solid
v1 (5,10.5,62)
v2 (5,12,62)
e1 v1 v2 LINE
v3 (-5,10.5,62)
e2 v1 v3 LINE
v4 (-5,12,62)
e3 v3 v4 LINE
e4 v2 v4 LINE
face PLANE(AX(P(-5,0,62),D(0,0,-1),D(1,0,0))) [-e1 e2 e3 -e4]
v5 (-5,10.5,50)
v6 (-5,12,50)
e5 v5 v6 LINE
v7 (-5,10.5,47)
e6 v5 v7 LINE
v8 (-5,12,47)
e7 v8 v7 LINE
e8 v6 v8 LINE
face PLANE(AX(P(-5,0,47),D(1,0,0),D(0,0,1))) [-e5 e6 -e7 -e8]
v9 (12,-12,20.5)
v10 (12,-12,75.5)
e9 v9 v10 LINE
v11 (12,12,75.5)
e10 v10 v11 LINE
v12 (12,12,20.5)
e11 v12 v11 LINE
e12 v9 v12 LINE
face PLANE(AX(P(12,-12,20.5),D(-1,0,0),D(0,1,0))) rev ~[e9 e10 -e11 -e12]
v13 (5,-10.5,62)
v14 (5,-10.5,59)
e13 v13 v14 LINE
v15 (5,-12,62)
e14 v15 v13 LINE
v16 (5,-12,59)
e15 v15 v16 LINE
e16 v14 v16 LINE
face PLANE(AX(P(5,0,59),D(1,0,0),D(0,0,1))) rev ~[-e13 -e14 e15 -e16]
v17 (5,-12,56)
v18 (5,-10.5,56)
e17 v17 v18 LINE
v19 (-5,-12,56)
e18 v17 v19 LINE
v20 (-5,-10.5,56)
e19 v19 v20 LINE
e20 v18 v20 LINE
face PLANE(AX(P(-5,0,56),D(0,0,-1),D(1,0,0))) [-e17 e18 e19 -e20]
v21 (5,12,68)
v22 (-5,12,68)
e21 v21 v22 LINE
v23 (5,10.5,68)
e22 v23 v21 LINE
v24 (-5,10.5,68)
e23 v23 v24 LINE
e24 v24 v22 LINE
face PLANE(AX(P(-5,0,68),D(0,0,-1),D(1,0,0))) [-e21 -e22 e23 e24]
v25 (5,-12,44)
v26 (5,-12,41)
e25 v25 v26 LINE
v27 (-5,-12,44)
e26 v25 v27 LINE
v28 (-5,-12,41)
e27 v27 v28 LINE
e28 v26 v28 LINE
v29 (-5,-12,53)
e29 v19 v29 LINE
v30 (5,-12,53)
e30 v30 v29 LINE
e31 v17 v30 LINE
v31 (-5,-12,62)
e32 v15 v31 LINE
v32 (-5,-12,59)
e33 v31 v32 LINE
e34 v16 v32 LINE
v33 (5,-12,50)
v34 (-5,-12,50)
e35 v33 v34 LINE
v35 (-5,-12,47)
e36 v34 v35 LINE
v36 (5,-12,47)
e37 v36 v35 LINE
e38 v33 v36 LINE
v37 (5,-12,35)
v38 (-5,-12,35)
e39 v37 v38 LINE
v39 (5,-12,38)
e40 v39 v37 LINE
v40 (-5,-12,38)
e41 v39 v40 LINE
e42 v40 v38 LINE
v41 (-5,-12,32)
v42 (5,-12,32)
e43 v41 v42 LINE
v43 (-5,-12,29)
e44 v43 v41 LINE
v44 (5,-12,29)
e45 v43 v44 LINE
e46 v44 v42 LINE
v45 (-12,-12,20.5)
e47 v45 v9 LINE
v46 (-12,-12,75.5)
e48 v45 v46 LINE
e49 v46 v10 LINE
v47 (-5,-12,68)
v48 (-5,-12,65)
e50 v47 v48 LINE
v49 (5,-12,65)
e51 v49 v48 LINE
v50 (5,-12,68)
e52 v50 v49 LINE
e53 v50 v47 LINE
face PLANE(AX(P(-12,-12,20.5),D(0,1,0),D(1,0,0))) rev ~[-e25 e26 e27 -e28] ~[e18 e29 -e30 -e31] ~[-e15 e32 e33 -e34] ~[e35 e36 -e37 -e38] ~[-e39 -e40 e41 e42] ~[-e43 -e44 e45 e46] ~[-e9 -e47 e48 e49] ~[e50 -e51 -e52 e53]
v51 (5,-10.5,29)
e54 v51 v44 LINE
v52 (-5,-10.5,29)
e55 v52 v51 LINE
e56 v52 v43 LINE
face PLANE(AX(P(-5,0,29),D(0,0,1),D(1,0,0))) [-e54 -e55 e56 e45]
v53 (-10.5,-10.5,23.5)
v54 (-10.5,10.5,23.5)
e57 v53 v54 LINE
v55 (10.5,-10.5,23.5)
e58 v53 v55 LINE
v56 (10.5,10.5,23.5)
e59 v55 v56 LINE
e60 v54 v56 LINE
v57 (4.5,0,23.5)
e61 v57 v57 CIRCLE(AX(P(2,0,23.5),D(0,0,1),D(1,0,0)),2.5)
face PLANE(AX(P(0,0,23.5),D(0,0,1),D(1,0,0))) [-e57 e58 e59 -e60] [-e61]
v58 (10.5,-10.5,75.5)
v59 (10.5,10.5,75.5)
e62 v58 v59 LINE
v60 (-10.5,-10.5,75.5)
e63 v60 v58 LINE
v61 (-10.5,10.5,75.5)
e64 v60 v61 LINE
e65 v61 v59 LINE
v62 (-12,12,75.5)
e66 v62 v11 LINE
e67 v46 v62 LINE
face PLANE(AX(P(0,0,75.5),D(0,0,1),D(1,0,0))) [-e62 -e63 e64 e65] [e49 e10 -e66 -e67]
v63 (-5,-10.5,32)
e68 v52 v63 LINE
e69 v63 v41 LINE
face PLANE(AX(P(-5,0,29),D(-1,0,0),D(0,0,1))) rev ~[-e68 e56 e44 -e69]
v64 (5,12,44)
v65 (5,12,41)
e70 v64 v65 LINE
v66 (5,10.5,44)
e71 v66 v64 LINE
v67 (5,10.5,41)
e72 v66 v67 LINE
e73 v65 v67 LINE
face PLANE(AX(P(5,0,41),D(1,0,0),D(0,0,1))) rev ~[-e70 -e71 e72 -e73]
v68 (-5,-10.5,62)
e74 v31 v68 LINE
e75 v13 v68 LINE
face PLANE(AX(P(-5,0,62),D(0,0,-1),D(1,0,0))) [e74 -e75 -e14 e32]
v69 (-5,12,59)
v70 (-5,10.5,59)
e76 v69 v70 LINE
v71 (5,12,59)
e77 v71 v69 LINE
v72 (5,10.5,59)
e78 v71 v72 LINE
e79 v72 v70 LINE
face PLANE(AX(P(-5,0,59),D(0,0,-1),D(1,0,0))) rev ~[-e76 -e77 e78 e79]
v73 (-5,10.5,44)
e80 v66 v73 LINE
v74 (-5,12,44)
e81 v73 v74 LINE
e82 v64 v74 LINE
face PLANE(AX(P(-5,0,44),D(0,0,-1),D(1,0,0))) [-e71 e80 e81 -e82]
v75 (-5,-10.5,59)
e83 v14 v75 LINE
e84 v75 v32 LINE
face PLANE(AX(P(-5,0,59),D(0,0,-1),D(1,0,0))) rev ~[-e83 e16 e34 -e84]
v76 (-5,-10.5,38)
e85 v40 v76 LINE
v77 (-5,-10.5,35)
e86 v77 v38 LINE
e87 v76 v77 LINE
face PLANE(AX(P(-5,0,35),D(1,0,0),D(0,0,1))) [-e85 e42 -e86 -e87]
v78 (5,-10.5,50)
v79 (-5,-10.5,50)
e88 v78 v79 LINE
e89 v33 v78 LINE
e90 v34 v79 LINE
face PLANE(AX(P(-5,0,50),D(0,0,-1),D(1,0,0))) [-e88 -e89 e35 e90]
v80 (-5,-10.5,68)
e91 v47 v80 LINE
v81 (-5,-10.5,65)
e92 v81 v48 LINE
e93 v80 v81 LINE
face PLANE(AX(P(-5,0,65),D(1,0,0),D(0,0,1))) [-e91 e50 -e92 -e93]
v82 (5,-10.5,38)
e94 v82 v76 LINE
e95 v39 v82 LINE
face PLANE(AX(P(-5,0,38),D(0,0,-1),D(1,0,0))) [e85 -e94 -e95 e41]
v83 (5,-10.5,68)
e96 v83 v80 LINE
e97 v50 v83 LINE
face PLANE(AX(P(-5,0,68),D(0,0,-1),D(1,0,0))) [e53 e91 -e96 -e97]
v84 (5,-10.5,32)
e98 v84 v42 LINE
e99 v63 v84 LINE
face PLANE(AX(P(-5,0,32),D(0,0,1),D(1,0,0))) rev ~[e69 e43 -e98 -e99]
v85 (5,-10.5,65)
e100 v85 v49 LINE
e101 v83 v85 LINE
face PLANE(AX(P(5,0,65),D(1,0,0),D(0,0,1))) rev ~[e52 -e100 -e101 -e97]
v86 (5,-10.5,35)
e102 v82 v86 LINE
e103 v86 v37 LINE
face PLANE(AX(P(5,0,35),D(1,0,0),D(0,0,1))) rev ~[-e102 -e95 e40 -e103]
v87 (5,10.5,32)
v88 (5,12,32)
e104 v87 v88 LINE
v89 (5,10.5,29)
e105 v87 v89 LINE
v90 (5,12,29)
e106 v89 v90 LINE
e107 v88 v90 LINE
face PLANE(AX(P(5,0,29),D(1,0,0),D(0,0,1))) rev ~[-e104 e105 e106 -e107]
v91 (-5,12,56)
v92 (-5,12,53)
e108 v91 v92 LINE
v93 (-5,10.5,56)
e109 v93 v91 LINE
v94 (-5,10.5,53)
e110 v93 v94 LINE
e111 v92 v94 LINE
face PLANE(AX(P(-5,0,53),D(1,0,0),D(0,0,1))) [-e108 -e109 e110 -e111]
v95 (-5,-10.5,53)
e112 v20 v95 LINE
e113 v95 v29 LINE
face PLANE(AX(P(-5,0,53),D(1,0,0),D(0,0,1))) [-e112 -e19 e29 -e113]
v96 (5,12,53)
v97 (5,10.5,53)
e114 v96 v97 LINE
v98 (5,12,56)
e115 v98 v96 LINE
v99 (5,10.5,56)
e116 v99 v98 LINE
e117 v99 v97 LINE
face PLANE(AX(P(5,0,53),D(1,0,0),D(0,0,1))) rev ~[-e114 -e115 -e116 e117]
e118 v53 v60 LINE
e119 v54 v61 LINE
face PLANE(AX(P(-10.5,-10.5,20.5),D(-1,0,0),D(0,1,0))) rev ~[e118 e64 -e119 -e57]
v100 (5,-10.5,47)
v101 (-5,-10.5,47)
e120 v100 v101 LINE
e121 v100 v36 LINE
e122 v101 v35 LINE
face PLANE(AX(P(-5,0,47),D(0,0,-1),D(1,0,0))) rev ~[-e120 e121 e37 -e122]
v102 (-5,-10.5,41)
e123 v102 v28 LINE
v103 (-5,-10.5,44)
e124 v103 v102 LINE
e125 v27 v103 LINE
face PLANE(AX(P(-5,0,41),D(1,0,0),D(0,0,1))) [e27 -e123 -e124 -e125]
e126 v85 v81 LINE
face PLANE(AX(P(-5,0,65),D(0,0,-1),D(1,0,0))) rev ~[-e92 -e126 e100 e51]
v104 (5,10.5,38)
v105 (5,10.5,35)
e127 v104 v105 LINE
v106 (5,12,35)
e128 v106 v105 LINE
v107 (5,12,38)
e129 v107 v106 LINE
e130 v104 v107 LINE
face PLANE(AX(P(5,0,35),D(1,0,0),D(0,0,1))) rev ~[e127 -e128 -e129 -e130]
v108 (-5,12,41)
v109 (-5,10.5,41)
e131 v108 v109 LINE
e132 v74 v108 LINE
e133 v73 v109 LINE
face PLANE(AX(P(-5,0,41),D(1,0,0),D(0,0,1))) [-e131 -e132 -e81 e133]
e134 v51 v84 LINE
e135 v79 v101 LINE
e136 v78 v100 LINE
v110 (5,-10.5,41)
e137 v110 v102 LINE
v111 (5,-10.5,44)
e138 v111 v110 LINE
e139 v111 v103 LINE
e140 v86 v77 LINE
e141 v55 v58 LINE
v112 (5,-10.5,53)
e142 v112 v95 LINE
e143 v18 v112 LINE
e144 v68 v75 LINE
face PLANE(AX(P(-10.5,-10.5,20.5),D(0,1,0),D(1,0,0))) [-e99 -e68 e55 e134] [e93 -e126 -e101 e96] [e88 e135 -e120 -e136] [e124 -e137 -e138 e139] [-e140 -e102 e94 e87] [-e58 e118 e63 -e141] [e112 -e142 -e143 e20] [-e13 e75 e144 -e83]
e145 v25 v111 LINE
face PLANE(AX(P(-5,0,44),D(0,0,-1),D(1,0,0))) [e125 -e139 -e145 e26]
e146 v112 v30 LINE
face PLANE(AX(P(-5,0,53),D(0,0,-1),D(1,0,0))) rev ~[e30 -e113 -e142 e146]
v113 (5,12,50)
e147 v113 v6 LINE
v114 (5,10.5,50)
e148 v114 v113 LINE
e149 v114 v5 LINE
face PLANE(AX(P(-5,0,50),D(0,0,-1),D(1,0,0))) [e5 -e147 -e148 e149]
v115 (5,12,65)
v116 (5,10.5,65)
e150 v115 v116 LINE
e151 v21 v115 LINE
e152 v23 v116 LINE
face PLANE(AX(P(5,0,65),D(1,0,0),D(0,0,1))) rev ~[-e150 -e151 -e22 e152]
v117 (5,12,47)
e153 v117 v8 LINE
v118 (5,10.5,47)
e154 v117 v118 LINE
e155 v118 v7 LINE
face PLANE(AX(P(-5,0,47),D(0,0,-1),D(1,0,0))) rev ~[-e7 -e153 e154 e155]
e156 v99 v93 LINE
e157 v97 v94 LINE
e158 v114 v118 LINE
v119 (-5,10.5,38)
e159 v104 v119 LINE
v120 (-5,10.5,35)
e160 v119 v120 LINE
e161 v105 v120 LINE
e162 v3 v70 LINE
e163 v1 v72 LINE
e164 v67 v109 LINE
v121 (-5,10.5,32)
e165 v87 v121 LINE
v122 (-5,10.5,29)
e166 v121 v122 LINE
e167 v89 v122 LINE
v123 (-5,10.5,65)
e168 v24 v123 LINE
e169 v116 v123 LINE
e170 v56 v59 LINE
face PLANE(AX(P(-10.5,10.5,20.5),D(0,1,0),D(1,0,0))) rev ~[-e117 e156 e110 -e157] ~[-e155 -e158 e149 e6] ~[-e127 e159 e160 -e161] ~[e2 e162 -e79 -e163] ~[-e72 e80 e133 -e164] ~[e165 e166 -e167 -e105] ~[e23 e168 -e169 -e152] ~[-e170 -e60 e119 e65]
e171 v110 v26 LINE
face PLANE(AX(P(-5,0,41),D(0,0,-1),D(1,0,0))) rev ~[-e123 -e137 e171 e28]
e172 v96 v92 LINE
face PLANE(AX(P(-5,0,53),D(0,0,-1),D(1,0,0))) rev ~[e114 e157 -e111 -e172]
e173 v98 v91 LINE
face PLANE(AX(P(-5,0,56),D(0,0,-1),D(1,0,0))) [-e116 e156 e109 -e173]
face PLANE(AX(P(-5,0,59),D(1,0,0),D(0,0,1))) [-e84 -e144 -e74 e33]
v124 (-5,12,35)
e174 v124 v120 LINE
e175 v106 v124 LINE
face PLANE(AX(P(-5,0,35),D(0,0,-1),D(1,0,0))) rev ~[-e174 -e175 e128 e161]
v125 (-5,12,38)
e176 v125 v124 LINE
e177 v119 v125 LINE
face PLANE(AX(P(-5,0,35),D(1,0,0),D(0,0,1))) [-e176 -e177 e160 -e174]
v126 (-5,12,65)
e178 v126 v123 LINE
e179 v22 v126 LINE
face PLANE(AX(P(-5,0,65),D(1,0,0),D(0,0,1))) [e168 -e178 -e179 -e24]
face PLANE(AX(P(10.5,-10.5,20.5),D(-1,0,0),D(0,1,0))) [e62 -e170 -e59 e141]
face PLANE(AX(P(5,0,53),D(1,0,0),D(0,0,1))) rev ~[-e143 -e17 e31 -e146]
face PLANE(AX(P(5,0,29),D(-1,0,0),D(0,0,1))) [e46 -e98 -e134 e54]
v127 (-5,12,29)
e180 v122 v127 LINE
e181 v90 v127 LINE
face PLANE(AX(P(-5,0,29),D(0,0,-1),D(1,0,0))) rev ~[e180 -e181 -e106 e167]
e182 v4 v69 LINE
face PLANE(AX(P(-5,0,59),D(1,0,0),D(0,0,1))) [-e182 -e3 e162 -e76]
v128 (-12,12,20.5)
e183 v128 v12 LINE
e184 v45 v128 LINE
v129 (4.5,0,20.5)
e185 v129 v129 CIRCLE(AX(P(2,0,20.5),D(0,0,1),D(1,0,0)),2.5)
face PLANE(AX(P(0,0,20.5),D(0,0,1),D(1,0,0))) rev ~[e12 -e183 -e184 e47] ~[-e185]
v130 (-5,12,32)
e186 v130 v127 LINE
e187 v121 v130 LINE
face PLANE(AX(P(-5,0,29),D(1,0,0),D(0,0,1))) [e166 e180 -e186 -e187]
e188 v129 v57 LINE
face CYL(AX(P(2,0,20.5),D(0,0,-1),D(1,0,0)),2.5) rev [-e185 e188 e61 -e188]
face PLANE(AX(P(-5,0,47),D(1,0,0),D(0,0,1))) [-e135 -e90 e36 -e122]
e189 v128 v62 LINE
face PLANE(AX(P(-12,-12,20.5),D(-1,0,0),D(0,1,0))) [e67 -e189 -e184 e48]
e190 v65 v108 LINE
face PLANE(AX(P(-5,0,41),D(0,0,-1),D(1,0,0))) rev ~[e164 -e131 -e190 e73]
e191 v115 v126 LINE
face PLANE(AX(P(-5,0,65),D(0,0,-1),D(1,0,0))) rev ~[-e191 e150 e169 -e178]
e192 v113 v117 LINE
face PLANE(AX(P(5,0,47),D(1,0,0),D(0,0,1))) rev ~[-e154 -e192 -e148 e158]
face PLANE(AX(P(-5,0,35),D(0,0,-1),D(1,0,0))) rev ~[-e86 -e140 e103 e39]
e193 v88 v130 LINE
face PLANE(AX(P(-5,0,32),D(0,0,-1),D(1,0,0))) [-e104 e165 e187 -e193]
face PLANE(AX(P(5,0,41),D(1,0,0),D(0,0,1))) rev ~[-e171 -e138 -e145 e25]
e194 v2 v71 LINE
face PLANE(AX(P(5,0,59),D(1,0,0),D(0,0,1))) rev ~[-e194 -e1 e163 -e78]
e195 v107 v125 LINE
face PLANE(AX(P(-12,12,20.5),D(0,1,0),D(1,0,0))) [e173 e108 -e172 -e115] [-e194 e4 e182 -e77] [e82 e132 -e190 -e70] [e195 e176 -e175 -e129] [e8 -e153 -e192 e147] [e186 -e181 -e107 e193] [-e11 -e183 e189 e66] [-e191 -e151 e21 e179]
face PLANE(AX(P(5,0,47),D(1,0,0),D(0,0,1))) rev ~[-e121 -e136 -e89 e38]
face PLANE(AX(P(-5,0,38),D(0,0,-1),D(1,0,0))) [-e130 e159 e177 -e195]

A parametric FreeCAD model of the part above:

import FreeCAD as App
import Part
import Sketcher
Q = App.Units.Quantity

doc = App.newDocument("Part")
body = doc.addObject("PartDesign::Body", "Body")

sketch1 = body.newObject("Sketcher::SketchObject", "Sketch")
sketch1.AttachmentSupport = (doc.getObject("XY_Plane"), [""])
sketch1.MapMode = "FlatFace"
sketch1.addGeometry(Part.LineSegment(App.Vector(-10.5, 10.5, 0), App.Vector(-10.5, -10.5, 0)), False)
sketch1.addGeometry(Part.LineSegment(App.Vector(-10.5, -10.5, 0), App.Vector(10.5, -10.5, 0)), False)
sketch1.addGeometry(Part.LineSegment(App.Vector(10.5, -10.5, 0), App.Vector(10.5, 10.5, 0)), False)
sketch1.addGeometry(Part.LineSegment(App.Vector(10.5, 10.5, 0), App.Vector(-10.5, 10.5, 0)), False)
sketch1.addGeometry(Part.Circle(App.Vector(2, 0, 0), App.Vector(0, 0, 1), 2.5), False)
sketch1.addConstraint(Sketcher.Constraint("Coincident", 0, 2, 1, 1))
sketch1.addConstraint(Sketcher.Constraint("Coincident", 1, 2, 2, 1))
sketch1.addConstraint(Sketcher.Constraint("Coincident", 2, 2, 3, 1))
sketch1.addConstraint(Sketcher.Constraint("Coincident", 3, 2, 0, 1))
sketch1.addConstraint(Sketcher.Constraint("Vertical", 0))
sketch1.addConstraint(Sketcher.Constraint("Horizontal", 1))
sketch1.addConstraint(Sketcher.Constraint("Vertical", 2))
sketch1.addConstraint(Sketcher.Constraint("Horizontal", 3))
sketch1.addConstraint(Sketcher.Constraint("Symmetric", 0, 2, 2, 2, -1, 1))
sketch1.addConstraint(Sketcher.Constraint("PointOnObject", 4, 3, -1))
sketch1.addConstraint(Sketcher.Constraint("Equal", 3, 0))
sketch1.addConstraint(Sketcher.Constraint("Diameter", 4, Q("5 mm")))
sketch1.addConstraint(Sketcher.Constraint("DistanceX", 1, 1, 1, 2, Q("21 mm")))
sketch1.addConstraint(Sketcher.Constraint("DistanceX", -1, 1, 4, 3, Q("2 mm")))
pad1 = body.newObject("PartDesign::Pad", "Pad")
pad1.Profile = sketch1
pad1.Length = 3

sketch2 = body.newObject("Sketcher::SketchObject", "Sketch001")
sketch2.AttachmentSupport = (doc.getObject("XY_Plane"), [""])
sketch2.MapMode = "FlatFace"
sketch2.addGeometry(Part.LineSegment(App.Vector(-12, 12, 0), App.Vector(-12, -12, 0)), False)
sketch2.addGeometry(Part.LineSegment(App.Vector(-12, -12, 0), App.Vector(12, -12, 0)), False)
sketch2.addGeometry(Part.LineSegment(App.Vector(12, -12, 0), App.Vector(12, 12, 0)), False)
sketch2.addGeometry(Part.LineSegment(App.Vector(12, 12, 0), App.Vector(-12, 12, 0)), False)
sketch2.addGeometry(Part.LineSegment(App.Vector(10.5, -10.5, 0), App.Vector(-10.5, -10.5, 0)), False)
sketch2.addGeometry(Part.LineSegment(App.Vector(-10.5, -10.5, 0), App.Vector(-10.5, 10.5, 0)), False)
sketch2.addGeometry(Part.LineSegment(App.Vector(-10.5, 10.5, 0), App.Vector(10.5, 10.5, 0)), False)
sketch2.addGeometry(Part.LineSegment(App.Vector(10.5, 10.5, 0), App.Vector(10.5, -10.5, 0)), False)
sketch2.addConstraint(Sketcher.Constraint("Coincident", 0, 2, 1, 1))
sketch2.addConstraint(Sketcher.Constraint("Coincident", 1, 2, 2, 1))
sketch2.addConstraint(Sketcher.Constraint("Coincident", 2, 2, 3, 1))
sketch2.addConstraint(Sketcher.Constraint("Coincident", 3, 2, 0, 1))
sketch2.addConstraint(Sketcher.Constraint("Coincident", 4, 2, 5, 1))
sketch2.addConstraint(Sketcher.Constraint("Coincident", 5, 2, 6, 1))
sketch2.addConstraint(Sketcher.Constraint("Coincident", 6, 2, 7, 1))
sketch2.addConstraint(Sketcher.Constraint("Coincident", 7, 2, 4, 1))
sketch2.addConstraint(Sketcher.Constraint("Vertical", 0))
sketch2.addConstraint(Sketcher.Constraint("Horizontal", 1))
sketch2.addConstraint(Sketcher.Constraint("Vertical", 2))
sketch2.addConstraint(Sketcher.Constraint("Horizontal", 3))
sketch2.addConstraint(Sketcher.Constraint("Horizontal", 4))
sketch2.addConstraint(Sketcher.Constraint("Vertical", 5))
sketch2.addConstraint(Sketcher.Constraint("Horizontal", 6))
sketch2.addConstraint(Sketcher.Constraint("Vertical", 7))
sketch2.addConstraint(Sketcher.Constraint("Symmetric", 0, 2, 2, 2, -1, 1))
sketch2.addConstraint(Sketcher.Constraint("Symmetric", 4, 2, 6, 2, -1, 1))
sketch2.addConstraint(Sketcher.Constraint("Equal", 3, 0))
sketch2.addConstraint(Sketcher.Constraint("Equal", 6, 5))
sketch2.addConstraint(Sketcher.Constraint("DistanceX", 1, 1, 1, 2, Q("24 mm")))
sketch2.addConstraint(Sketcher.Constraint("DistanceX", 4, 2, 4, 1, Q("21 mm")))
pad2 = body.newObject("PartDesign::Pad", "Pad001")
pad2.Profile = sketch2
pad2.Length = 55

sketch3 = body.newObject("Sketcher::SketchObject", "Sketch002")
sketch3.AttachmentSupport = (doc.getObject("XZ_Plane"), [""])
sketch3.MapMode = "FlatFace"
sketch3.addGeometry(Part.LineSegment(App.Vector(-5, 11.5, 0), App.Vector(-5, 8.5, 0)), False)
sketch3.addGeometry(Part.LineSegment(App.Vector(-5, 8.5, 0), App.Vector(5, 8.5, 0)), False)
sketch3.addGeometry(Part.LineSegment(App.Vector(5, 8.5, 0), App.Vector(5, 11.5, 0)), False)
sketch3.addGeometry(Part.LineSegment(App.Vector(5, 11.5, 0), App.Vector(-5, 11.5, 0)), False)
sketch3.addConstraint(Sketcher.Constraint("Coincident", 0, 2, 1, 1))
sketch3.addConstraint(Sketcher.Constraint("Coincident", 1, 2, 2, 1))
sketch3.addConstraint(Sketcher.Constraint("Coincident", 2, 2, 3, 1))
sketch3.addConstraint(Sketcher.Constraint("Coincident", 3, 2, 0, 1))
sketch3.addConstraint(Sketcher.Constraint("Vertical", 0))
sketch3.addConstraint(Sketcher.Constraint("Horizontal", 1))
sketch3.addConstraint(Sketcher.Constraint("Vertical", 2))
sketch3.addConstraint(Sketcher.Constraint("Horizontal", 3))
sketch3.addConstraint(Sketcher.Constraint("DistanceX", 1, 1, 1, 2, Q("10 mm")))
sketch3.addConstraint(Sketcher.Constraint("DistanceY", 0, 2, 0, 1, Q("3 mm")))
sketch3.addConstraint(Sketcher.Constraint("DistanceX", 0, 2, -1, 1, Q("5 mm")))
sketch3.addConstraint(Sketcher.Constraint("DistanceY", -1, 1, 0, 2, Q("8.5 mm")))
pocket1 = body.newObject("PartDesign::Pocket", "Pocket")
pocket1.Profile = sketch3
pocket1.Type = "ThroughAll"
pocket1.Midplane = True
doc.recompute()

linearpattern = body.newObject("PartDesign::LinearPattern", "LinearPattern")
linearpattern.Originals = [pocket1]
linearpattern.Direction = (doc.getObject("Z_Axis"), [""])
linearpattern.Mode = "offset"
linearpattern.Offset = 6
linearpattern.Occurrences = 7
body.Tip = linearpattern
body2 = doc.addObject("PartDesign::Body", "Body001")
doc.recompute()

body.Placement = App.Placement(App.Vector(0, 0, 20.5), App.Rotation(App.Vector(0, 0, 1), 0))
boolean = body2.newObject("PartDesign::Boolean", "Boolean")
boolean.Type = "Fuse"
boolean.addObjects([body])

doc.recompute()
